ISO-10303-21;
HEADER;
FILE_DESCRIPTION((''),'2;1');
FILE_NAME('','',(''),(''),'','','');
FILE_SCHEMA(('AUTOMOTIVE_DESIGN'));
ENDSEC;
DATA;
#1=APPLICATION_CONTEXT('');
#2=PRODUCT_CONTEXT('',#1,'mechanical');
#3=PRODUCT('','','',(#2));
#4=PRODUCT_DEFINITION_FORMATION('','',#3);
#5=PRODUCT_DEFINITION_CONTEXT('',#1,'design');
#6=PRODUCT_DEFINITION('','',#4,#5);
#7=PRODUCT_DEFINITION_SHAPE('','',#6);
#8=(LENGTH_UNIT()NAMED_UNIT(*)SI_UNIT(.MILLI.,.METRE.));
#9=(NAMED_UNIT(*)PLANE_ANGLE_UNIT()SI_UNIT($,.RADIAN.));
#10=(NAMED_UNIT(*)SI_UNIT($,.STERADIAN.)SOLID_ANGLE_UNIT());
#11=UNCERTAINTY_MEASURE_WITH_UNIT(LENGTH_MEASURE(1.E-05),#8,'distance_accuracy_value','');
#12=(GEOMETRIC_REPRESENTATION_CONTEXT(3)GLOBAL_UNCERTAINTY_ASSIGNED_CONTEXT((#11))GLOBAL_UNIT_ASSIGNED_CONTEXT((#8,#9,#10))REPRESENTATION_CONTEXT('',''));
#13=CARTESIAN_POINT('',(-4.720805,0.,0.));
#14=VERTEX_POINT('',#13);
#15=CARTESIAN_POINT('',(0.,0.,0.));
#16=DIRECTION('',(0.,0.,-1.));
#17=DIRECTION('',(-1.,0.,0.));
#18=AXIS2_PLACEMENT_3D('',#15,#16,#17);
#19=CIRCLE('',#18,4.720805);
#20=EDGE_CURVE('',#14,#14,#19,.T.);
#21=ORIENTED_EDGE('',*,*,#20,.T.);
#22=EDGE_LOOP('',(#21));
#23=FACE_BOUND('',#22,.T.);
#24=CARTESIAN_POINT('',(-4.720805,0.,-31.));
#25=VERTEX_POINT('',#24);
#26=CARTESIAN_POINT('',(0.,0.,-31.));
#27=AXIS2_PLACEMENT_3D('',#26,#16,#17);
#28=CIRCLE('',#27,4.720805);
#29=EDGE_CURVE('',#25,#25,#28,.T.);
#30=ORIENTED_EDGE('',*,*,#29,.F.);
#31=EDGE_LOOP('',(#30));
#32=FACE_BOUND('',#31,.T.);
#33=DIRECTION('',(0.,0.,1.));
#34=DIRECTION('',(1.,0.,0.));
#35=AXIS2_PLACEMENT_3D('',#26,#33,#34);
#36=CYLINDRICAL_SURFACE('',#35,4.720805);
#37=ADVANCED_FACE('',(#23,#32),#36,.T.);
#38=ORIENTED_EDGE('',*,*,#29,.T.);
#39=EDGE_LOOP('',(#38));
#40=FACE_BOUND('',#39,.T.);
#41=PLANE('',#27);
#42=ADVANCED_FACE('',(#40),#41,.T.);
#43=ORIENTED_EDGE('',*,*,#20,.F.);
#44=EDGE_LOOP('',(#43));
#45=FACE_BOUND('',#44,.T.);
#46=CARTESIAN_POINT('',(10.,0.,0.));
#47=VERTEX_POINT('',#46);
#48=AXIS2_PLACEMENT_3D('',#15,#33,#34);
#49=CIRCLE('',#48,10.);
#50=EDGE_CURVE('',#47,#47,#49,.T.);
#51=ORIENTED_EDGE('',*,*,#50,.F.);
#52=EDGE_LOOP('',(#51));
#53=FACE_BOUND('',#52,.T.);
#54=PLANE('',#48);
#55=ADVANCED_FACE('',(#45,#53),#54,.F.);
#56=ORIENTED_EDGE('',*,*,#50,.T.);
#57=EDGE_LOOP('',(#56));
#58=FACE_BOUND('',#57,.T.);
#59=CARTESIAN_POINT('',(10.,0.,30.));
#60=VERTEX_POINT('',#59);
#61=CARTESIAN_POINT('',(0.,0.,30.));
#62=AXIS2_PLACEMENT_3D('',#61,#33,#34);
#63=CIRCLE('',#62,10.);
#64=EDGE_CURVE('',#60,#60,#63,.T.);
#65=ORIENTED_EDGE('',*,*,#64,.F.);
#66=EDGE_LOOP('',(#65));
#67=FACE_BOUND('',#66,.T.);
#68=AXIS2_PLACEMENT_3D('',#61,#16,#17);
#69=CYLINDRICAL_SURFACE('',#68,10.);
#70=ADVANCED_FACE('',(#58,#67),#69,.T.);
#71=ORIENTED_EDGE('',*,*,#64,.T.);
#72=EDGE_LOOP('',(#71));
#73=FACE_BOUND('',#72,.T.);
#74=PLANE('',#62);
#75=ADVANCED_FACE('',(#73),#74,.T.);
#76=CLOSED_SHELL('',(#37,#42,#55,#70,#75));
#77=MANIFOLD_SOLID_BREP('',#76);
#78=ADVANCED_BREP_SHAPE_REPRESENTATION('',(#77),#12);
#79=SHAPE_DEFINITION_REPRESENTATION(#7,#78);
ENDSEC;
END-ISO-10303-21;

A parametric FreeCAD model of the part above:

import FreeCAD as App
import Part
import Sketcher
from FreeCAD import Vector

doc = App.newDocument("Part")
body = doc.addObject("PartDesign::Body", "Body")

sketch1 = body.newObject("Sketcher::SketchObject", "Sketch")
sketch1.AttachmentSupport = (doc.getObject("XY_Plane"), [""])
sketch1.MapMode = "FlatFace"
sketch1.addGeometry(Part.Circle(Vector(0, 0, 0), Vector(0, 0, 1), 10), False)
sketch1.addConstraint(Sketcher.Constraint("Coincident", 0, 3, -1, 1))
sketch1.addConstraint(Sketcher.Constraint("Diameter", 0, 20.0))
pad1 = body.newObject("PartDesign::Pad", "Pad")
pad1.Profile = sketch1
pad1.Length = 30

sketch2 = body.newObject("Sketcher::SketchObject", "Sketch001")
sketch2.AttachmentSupport = (doc.getObject("XY_Plane"), [""])
sketch2.MapMode = "FlatFace"
sketch2.addGeometry(Part.Circle(Vector(0, 0, 0), Vector(0, 0, 1), 4.7), False)
sketch2.addConstraint(Sketcher.Constraint("Coincident", 0, 3, -1, 1))
sketch2.addConstraint(Sketcher.Constraint("Diameter", 0, 9.44161))
pad2 = body.newObject("PartDesign::Pad", "Pad001")
pad2.Profile = sketch2
pad2.Length = 31
pad2.Reversed = True

doc.recompute()
